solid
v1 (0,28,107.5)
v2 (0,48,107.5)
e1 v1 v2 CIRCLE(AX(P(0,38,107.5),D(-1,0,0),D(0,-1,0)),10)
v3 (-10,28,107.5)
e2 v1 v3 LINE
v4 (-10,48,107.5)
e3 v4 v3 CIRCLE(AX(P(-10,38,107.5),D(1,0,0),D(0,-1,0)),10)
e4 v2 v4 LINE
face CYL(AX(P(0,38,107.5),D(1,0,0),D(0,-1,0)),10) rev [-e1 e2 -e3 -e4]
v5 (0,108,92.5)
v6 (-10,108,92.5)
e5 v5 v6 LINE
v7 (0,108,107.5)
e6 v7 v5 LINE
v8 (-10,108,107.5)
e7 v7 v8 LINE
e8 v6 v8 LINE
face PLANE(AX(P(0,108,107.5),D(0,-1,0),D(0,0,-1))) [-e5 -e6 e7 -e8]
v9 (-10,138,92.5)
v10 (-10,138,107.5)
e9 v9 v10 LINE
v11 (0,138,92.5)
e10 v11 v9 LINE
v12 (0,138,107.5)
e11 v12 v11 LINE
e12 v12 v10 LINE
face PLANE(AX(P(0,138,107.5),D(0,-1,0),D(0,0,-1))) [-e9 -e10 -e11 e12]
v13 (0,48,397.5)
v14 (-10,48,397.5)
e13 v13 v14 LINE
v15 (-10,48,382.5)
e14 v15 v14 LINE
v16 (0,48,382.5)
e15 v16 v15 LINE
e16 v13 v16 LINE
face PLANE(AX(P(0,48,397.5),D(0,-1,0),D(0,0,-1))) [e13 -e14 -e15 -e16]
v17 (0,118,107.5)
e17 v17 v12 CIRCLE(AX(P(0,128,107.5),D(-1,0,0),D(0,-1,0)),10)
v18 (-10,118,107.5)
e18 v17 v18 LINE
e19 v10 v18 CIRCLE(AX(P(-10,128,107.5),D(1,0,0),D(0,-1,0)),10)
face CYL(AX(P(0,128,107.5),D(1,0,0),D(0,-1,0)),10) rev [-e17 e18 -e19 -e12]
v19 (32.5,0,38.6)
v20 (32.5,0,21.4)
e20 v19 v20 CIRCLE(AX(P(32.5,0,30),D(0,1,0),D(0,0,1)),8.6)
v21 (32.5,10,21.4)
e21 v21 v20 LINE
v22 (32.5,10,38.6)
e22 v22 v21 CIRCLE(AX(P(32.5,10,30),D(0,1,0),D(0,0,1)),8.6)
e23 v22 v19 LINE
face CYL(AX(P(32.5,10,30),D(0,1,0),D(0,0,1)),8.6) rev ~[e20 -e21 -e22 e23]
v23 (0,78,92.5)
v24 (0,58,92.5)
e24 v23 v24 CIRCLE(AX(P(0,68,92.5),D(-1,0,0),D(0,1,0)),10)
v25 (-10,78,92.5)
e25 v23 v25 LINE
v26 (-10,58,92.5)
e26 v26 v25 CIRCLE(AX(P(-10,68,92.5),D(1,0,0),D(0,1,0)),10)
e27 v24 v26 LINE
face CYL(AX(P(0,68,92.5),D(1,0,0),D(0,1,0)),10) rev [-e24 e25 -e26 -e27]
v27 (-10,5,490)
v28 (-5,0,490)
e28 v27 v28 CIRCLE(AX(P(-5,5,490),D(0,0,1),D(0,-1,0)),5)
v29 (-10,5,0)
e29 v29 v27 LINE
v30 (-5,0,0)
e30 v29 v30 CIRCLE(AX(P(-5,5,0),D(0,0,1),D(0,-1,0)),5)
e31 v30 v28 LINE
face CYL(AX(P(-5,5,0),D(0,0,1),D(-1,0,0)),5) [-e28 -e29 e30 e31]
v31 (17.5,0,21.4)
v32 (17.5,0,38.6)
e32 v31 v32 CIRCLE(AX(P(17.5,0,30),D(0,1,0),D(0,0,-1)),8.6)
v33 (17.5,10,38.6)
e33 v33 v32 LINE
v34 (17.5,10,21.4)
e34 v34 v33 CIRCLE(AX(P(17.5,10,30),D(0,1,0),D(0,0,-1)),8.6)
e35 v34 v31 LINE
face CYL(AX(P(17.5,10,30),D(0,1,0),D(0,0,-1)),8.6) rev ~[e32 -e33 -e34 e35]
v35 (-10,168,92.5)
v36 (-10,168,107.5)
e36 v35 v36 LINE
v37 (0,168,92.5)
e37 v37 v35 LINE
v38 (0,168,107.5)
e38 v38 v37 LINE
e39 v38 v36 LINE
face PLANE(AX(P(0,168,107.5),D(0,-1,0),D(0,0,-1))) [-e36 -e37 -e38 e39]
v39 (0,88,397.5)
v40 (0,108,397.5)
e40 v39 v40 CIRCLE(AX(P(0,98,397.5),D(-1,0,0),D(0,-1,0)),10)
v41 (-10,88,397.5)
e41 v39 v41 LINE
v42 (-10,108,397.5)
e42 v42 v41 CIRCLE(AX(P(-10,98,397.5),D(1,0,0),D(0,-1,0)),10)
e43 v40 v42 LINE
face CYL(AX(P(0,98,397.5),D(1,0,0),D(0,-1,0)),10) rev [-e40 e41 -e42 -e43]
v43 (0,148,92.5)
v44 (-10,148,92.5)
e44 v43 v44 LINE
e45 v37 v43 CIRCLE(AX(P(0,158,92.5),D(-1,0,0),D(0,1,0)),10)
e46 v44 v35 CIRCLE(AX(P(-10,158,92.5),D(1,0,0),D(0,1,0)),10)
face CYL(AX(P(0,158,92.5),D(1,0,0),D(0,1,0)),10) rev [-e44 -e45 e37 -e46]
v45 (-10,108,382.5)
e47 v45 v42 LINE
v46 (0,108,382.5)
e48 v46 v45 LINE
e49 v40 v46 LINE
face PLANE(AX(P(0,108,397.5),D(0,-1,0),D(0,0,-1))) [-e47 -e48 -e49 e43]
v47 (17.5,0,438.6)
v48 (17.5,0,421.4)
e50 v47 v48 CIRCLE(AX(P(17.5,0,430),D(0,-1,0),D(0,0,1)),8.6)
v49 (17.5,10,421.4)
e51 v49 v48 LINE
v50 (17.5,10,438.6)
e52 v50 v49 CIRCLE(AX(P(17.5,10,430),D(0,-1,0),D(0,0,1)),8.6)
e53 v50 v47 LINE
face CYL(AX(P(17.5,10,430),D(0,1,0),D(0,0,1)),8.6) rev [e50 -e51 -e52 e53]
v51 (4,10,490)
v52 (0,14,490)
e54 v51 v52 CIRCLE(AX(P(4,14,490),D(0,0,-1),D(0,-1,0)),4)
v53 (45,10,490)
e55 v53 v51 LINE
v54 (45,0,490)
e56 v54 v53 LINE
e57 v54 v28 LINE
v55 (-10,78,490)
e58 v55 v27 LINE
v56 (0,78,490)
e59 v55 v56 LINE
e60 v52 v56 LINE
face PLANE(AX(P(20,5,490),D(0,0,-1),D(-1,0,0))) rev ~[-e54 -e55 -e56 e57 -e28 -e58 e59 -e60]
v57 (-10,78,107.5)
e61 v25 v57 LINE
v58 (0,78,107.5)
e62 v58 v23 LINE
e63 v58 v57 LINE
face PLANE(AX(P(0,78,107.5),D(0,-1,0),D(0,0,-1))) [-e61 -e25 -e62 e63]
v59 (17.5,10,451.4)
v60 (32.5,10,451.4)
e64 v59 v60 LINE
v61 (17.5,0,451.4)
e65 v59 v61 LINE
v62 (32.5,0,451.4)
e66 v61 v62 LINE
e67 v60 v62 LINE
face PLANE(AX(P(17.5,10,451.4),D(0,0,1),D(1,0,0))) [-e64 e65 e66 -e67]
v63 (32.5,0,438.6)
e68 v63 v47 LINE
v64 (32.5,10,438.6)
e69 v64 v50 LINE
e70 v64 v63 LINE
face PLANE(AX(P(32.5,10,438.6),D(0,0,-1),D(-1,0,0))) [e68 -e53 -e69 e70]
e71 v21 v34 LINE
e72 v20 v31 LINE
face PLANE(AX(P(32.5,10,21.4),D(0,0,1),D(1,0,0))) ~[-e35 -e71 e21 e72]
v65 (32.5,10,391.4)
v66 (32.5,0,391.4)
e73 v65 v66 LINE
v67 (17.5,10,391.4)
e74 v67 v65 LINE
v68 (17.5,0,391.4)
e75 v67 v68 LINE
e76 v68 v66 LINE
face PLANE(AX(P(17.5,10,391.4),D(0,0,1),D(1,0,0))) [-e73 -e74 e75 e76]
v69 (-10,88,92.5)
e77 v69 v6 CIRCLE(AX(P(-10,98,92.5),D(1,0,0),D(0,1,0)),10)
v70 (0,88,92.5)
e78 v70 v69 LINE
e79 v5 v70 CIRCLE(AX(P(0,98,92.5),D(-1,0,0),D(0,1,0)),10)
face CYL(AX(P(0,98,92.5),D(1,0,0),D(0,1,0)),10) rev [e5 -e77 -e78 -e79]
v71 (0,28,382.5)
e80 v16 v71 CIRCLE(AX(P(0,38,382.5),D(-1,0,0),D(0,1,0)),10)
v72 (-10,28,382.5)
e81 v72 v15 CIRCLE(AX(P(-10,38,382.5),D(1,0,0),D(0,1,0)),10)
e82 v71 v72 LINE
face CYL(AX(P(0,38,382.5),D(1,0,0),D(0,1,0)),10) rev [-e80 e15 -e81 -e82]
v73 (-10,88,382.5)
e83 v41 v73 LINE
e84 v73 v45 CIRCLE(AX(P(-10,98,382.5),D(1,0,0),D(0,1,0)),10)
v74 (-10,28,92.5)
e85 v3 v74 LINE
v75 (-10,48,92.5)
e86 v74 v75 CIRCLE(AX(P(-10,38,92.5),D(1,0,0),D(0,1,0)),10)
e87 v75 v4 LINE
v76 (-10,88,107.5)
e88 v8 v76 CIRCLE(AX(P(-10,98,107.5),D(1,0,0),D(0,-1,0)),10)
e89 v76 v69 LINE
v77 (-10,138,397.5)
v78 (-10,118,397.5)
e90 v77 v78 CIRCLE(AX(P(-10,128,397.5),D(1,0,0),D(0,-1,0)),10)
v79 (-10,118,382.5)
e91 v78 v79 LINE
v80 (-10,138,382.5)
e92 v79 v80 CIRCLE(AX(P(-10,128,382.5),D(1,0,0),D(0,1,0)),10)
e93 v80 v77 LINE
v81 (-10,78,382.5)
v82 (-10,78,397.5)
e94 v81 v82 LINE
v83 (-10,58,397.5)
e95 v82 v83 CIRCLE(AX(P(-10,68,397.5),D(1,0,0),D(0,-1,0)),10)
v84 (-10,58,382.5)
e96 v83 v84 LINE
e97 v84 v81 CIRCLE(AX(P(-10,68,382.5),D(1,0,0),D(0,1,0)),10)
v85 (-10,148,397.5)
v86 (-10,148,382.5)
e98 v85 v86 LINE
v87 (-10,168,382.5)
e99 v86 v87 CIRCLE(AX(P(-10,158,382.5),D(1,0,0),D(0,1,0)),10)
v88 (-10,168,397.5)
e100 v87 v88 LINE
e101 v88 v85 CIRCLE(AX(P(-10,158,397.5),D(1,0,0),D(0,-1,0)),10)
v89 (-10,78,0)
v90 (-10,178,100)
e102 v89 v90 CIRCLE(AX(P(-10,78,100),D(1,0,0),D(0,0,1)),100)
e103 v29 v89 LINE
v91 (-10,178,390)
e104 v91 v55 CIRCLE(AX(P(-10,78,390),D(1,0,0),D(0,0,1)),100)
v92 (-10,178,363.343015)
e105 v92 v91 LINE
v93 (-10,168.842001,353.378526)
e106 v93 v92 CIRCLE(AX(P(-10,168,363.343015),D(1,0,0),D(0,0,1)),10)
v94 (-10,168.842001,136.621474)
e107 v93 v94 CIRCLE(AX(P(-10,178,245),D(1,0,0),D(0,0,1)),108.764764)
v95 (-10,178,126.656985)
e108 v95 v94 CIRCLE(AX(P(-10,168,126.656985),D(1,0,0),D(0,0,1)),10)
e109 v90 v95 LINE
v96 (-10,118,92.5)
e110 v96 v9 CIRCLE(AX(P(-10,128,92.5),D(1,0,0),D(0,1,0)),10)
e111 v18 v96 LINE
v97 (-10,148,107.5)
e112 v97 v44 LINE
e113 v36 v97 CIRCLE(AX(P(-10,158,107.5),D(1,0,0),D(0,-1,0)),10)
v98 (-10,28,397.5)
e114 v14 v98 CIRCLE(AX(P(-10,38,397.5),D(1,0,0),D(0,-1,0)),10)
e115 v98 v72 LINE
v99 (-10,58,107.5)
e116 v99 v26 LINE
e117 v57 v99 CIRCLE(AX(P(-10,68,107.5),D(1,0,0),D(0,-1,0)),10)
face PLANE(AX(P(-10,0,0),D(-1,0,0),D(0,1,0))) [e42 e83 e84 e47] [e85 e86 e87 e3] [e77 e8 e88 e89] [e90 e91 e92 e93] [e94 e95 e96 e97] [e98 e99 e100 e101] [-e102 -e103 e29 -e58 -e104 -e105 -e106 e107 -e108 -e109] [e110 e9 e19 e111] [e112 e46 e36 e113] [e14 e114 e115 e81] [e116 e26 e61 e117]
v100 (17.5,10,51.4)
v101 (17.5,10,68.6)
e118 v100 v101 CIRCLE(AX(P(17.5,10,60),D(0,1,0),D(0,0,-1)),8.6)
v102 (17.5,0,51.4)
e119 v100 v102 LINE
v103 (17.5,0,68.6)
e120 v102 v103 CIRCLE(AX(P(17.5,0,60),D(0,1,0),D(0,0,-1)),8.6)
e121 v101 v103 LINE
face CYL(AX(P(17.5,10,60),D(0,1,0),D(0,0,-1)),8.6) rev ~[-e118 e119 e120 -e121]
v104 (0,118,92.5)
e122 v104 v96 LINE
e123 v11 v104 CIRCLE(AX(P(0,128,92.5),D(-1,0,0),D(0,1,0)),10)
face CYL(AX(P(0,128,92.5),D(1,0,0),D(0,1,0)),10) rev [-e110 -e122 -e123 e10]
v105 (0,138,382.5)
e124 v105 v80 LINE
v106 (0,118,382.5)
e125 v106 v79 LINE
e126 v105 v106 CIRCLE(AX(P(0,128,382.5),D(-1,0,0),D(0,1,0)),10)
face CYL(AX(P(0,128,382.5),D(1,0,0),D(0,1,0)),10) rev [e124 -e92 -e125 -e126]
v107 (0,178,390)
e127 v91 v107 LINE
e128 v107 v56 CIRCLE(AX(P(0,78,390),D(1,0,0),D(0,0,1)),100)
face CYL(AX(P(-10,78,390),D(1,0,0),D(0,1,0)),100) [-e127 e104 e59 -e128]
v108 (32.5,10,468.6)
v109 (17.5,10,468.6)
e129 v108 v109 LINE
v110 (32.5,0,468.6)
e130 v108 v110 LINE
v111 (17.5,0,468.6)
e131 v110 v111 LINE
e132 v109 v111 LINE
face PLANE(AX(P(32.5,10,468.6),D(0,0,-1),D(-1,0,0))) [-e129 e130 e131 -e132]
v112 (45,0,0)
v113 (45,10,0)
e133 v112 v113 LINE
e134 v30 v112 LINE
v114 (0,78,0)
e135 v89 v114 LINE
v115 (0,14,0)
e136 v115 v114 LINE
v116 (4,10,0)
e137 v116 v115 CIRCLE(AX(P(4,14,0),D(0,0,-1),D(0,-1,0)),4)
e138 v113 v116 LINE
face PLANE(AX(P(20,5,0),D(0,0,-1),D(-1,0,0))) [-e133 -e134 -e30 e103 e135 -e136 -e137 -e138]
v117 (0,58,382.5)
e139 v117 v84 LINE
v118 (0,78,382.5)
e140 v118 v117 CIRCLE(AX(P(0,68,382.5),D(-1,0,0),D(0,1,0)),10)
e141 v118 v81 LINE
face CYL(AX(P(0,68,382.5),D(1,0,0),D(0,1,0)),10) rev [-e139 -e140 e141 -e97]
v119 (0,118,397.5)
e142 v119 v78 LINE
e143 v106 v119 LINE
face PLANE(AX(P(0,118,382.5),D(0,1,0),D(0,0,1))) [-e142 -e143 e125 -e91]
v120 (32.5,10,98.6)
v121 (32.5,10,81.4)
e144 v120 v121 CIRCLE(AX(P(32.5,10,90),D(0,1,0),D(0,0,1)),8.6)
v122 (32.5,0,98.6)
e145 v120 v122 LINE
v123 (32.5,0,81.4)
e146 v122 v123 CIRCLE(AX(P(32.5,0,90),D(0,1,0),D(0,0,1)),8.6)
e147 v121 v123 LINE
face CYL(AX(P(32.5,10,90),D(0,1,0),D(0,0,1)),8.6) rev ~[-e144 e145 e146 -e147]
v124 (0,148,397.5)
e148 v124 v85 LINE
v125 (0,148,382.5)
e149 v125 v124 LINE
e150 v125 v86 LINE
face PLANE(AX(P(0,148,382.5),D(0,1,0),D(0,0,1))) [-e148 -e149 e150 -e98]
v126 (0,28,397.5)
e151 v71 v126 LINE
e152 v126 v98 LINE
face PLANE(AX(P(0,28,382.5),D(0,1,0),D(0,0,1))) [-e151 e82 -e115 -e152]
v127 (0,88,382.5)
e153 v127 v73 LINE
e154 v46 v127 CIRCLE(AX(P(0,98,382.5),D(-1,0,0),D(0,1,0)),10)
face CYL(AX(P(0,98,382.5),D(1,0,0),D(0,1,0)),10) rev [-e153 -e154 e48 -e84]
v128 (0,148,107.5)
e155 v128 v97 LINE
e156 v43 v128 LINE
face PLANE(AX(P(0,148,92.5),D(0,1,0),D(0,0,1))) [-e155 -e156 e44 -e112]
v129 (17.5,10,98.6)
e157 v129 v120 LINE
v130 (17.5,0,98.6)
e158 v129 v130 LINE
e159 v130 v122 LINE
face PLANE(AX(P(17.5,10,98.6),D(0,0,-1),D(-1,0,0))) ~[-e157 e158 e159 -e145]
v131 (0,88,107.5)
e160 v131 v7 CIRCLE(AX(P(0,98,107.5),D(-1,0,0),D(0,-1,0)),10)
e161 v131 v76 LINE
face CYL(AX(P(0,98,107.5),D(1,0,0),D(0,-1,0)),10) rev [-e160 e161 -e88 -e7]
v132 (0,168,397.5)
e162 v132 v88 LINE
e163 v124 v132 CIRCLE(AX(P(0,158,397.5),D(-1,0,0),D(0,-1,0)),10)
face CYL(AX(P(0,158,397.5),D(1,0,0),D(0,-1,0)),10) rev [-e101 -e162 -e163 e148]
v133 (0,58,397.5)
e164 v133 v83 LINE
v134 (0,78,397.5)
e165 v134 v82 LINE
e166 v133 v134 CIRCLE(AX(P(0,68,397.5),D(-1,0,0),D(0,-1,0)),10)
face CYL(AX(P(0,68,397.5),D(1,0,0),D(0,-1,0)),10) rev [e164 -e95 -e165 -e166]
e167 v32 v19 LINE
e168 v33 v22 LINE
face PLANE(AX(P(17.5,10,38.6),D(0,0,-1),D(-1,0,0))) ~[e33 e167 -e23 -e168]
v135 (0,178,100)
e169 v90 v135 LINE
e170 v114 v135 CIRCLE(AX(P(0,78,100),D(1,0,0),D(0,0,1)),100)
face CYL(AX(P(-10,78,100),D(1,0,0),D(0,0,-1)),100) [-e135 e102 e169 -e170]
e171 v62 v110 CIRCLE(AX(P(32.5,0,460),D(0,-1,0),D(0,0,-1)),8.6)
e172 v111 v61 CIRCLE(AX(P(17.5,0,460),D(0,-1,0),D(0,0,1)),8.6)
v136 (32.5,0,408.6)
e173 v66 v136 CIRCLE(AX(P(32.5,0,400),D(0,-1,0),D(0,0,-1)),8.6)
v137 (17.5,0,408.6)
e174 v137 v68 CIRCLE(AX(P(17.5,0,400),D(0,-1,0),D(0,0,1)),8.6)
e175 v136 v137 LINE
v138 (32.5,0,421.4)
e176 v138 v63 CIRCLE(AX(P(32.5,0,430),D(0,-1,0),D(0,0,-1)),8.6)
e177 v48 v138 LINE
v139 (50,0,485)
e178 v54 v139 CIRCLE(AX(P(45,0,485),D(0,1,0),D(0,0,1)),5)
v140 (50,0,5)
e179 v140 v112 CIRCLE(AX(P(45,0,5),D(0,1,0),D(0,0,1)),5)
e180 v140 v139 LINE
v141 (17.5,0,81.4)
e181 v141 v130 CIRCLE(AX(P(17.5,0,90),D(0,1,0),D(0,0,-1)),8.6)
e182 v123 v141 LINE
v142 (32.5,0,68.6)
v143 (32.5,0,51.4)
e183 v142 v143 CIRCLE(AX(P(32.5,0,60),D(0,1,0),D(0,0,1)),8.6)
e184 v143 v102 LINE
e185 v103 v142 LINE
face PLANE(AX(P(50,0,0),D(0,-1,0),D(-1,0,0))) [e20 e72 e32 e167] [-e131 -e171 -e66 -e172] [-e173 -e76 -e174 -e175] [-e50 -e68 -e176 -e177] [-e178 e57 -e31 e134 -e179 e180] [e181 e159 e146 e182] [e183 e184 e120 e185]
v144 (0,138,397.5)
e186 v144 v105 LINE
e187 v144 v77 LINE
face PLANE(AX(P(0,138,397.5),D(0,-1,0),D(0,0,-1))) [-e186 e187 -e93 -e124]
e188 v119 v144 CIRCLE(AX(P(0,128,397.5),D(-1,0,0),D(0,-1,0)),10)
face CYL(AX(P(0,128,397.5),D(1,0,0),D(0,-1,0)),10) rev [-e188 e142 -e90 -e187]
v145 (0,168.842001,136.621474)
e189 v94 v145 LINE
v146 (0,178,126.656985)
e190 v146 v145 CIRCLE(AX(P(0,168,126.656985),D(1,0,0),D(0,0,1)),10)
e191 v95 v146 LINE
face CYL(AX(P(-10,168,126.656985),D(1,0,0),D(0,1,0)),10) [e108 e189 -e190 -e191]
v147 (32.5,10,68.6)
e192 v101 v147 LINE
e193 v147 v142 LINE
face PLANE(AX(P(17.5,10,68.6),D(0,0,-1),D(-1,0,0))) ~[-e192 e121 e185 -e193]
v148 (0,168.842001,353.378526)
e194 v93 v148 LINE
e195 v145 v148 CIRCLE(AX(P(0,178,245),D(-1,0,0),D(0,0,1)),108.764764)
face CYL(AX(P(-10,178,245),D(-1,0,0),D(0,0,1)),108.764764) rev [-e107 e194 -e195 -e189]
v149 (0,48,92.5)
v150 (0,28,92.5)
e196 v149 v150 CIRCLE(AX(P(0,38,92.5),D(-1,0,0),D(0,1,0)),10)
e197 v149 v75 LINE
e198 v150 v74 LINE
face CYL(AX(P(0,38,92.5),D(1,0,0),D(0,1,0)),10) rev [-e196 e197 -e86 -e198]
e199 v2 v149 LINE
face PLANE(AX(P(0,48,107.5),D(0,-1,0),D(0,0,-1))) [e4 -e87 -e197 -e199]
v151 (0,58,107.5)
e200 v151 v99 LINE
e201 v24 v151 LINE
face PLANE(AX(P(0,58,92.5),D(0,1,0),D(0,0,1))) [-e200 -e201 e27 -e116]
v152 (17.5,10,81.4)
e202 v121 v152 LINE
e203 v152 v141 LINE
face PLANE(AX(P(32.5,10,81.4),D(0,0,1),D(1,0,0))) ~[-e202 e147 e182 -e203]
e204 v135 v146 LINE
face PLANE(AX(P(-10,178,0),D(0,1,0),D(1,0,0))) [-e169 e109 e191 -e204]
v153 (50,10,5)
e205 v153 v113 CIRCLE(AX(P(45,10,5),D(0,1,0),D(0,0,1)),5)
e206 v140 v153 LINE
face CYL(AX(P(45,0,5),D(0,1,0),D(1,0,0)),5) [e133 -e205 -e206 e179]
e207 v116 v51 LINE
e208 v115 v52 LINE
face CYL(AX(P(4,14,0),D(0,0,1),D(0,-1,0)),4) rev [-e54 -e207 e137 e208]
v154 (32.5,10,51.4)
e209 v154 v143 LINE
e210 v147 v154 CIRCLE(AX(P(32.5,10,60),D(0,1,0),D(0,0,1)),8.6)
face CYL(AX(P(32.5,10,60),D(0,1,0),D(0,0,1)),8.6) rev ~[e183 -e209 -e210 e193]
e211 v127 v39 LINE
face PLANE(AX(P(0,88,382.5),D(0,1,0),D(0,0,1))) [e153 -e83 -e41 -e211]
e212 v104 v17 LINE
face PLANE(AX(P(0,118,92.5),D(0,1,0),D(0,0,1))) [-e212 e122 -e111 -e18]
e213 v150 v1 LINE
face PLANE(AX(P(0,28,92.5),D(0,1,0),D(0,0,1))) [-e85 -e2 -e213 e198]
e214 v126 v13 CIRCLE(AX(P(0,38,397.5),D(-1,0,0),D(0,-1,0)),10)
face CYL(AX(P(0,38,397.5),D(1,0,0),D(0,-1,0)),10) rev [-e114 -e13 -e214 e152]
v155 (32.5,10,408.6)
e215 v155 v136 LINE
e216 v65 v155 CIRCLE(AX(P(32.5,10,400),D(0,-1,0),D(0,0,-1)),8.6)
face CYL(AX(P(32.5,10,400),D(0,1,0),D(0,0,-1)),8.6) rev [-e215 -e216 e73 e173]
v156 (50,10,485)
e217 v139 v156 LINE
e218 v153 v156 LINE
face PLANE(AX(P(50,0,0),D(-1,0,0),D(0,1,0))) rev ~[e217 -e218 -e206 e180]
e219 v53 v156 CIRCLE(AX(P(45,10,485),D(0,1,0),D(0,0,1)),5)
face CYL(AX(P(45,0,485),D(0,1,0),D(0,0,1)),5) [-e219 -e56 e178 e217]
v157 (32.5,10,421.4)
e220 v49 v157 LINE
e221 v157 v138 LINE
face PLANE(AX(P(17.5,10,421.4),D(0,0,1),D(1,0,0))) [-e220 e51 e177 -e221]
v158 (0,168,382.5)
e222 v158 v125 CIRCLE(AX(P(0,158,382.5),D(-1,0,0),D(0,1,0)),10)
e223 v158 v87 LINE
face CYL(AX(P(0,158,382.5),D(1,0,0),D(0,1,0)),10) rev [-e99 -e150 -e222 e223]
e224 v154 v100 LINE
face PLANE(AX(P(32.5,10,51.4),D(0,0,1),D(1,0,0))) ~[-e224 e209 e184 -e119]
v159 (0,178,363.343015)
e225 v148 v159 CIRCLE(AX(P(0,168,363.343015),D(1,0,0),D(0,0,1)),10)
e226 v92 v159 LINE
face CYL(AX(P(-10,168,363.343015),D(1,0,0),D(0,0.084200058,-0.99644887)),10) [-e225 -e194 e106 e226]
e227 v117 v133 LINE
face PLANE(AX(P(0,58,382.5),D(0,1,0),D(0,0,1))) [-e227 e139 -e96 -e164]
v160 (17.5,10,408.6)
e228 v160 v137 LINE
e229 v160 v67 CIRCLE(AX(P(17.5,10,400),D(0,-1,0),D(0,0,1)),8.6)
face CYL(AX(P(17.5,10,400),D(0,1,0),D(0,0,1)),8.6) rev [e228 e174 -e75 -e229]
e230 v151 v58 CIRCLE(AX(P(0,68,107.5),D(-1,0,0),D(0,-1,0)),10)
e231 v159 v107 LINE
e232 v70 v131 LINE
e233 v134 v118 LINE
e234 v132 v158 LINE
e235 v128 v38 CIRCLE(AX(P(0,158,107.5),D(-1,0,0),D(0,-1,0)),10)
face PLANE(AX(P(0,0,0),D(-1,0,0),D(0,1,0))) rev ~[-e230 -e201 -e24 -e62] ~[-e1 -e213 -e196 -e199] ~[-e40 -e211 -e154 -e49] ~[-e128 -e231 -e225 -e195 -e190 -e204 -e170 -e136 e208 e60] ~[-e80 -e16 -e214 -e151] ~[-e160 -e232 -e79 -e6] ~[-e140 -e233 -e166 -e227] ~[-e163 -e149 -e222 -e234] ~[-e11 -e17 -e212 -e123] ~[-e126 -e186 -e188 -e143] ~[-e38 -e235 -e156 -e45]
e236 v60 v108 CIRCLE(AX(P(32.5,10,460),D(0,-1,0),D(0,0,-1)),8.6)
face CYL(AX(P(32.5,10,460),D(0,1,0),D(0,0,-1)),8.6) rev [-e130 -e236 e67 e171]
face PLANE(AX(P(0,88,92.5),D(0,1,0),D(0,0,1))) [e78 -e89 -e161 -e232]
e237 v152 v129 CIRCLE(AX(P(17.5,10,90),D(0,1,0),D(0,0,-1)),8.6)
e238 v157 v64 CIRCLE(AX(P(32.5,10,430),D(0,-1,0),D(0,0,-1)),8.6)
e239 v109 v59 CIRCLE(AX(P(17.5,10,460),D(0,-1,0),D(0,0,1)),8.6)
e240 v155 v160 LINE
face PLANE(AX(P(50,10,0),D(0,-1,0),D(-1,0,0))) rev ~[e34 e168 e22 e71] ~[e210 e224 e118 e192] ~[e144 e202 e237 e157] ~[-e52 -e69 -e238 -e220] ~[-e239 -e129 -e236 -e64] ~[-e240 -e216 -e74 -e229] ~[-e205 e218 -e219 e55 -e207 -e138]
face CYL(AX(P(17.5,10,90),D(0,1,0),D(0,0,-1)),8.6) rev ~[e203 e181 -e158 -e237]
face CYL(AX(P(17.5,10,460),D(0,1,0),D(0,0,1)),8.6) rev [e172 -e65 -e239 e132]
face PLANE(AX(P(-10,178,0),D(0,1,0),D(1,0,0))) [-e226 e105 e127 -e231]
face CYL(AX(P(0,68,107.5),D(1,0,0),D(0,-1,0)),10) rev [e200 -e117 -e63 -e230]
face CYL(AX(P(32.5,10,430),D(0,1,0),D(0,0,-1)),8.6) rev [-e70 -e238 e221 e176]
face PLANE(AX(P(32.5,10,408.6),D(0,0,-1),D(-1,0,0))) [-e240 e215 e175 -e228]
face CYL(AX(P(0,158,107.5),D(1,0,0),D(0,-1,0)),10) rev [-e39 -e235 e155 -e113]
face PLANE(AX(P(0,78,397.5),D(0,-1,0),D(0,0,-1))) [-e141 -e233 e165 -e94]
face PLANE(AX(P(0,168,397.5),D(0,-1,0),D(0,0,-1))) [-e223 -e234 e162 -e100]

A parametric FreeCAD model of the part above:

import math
import FreeCAD as App
import Part
import Sketcher


def edges_at(feature, points):
    """Names of the edges that pass closest to the given points."""
    edges = feature.Shape.Edges
    near = lambda p: min(range(len(edges)), key=lambda i: edges[i].distToShape(Part.Vertex(*p))[0])
    return sorted({f"Edge{near(p) + 1}" for p in points})

doc = App.newDocument("Part")
body = doc.addObject("PartDesign::Body", "Body")

sketch1 = body.newObject("Sketcher::SketchObject", "Sketch")
sketch1.AttachmentSupport = (doc.getObject("XY_Plane"), [""])
sketch1.MapMode = "FlatFace"
sketch1.addGeometry(Part.LineSegment(App.Vector(-10, 178, 0), App.Vector(-10, 0, 0)), False)
sketch1.addGeometry(Part.LineSegment(App.Vector(-10, 0, 0), App.Vector(0, 0, 0)), False)
sketch1.addGeometry(Part.LineSegment(App.Vector(0, 0, 0), App.Vector(0, 178, 0)), False)
sketch1.addGeometry(Part.LineSegment(App.Vector(0, 178, 0), App.Vector(-10, 178, 0)), False)
sketch1.addConstraint(Sketcher.Constraint("Coincident", 0, 2, 1, 1))
sketch1.addConstraint(Sketcher.Constraint("Coincident", 1, 2, 2, 1))
sketch1.addConstraint(Sketcher.Constraint("Coincident", 2, 2, 3, 1))
sketch1.addConstraint(Sketcher.Constraint("Coincident", 3, 2, 0, 1))
sketch1.addConstraint(Sketcher.Constraint("Vertical", 0))
sketch1.addConstraint(Sketcher.Constraint("Horizontal", 1))
sketch1.addConstraint(Sketcher.Constraint("Vertical", 2))
sketch1.addConstraint(Sketcher.Constraint("Horizontal", 3))
sketch1.addConstraint(Sketcher.Constraint("Coincident", 1, 2, -1, 1))
sketch1.addConstraint(Sketcher.Constraint("DistanceX", 1, 1, 1, 2, 10.0))
sketch1.addConstraint(Sketcher.Constraint("DistanceY", 0, 2, 0, 1, 178.0))
pad1 = body.newObject("PartDesign::Pad", "Pad")
pad1.Profile = sketch1
pad1.Length = 490

sketch2 = body.newObject("Sketcher::SketchObject", "Sketch001")
sketch2.AttachmentSupport = (doc.getObject("YZ_Plane"), [""])
sketch2.MapMode = "FlatFace"
sketch2.addGeometry(Part.LineSegment(App.Vector(168, 92.5, 0), App.Vector(168, 107.5, 0)), False)
sketch2.addGeometry(Part.ArcOfCircle(Part.Circle(App.Vector(158, 107.5, 0), App.Vector(0, 0, 1), 10), math.radians(0), math.radians(180)), False)
sketch2.addGeometry(Part.LineSegment(App.Vector(148, 107.5, 0), App.Vector(148, 92.5, 0)), False)
sketch2.addGeometry(Part.ArcOfCircle(Part.Circle(App.Vector(158, 92.5, 0), App.Vector(0, 0, 1), 10), math.radians(180), math.radians(360)), False)
sketch2.addGeometry(Part.LineSegment(App.Vector(138, 92.5, 0), App.Vector(138, 107.5, 0)), False)
sketch2.addGeometry(Part.ArcOfCircle(Part.Circle(App.Vector(128, 107.5, 0), App.Vector(0, 0, 1), 10), math.radians(0), math.radians(180)), False)
sketch2.addGeometry(Part.LineSegment(App.Vector(118, 107.5, 0), App.Vector(118, 92.5, 0)), False)
sketch2.addGeometry(Part.ArcOfCircle(Part.Circle(App.Vector(128, 92.5, 0), App.Vector(0, 0, 1), 10), math.radians(180), math.radians(360)), False)
sketch2.addGeometry(Part.LineSegment(App.Vector(108, 92.5, 0), App.Vector(108, 107.5, 0)), False)
sketch2.addGeometry(Part.ArcOfCircle(Part.Circle(App.Vector(98, 107.5, 0), App.Vector(0, 0, 1), 10), math.radians(0), math.radians(180)), False)
sketch2.addGeometry(Part.LineSegment(App.Vector(88, 107.5, 0), App.Vector(88, 92.5, 0)), False)
sketch2.addGeometry(Part.ArcOfCircle(Part.Circle(App.Vector(98, 92.5, 0), App.Vector(0, 0, 1), 10), math.radians(180), math.radians(360)), False)
sketch2.addGeometry(Part.LineSegment(App.Vector(78, 92.5, 0), App.Vector(78, 107.5, 0)), False)
sketch2.addGeometry(Part.ArcOfCircle(Part.Circle(App.Vector(68, 107.5, 0), App.Vector(0, 0, 1), 10), math.radians(0), math.radians(180)), False)
sketch2.addGeometry(Part.LineSegment(App.Vector(58, 107.5, 0), App.Vector(58, 92.5, 0)), False)
sketch2.addGeometry(Part.ArcOfCircle(Part.Circle(App.Vector(68, 92.5, 0), App.Vector(0, 0, 1), 10), math.radians(180), math.radians(360)), False)
sketch2.addGeometry(Part.LineSegment(App.Vector(48, 92.5, 0), App.Vector(48, 107.5, 0)), False)
sketch2.addGeometry(Part.ArcOfCircle(Part.Circle(App.Vector(38, 107.5, 0), App.Vector(0, 0, 1), 10), math.radians(0), math.radians(180)), False)
sketch2.addGeometry(Part.LineSegment(App.Vector(28, 107.5, 0), App.Vector(28, 92.5, 0)), False)
sketch2.addGeometry(Part.ArcOfCircle(Part.Circle(App.Vector(38, 92.5, 0), App.Vector(0, 0, 1), 10), math.radians(180), math.radians(360)), False)
sketch2.addConstraint(Sketcher.Constraint("Tangent", 0, 2, 1, 1))
sketch2.addConstraint(Sketcher.Constraint("Tangent", 1, 2, 2, 1))
sketch2.addConstraint(Sketcher.Constraint("Tangent", 2, 2, 3, 1))
sketch2.addConstraint(Sketcher.Constraint("Tangent", 3, 2, 0, 1))
sketch2.addConstraint(Sketcher.Constraint("Tangent", 4, 2, 5, 1))
sketch2.addConstraint(Sketcher.Constraint("Tangent", 5, 2, 6, 1))
sketch2.addConstraint(Sketcher.Constraint("Tangent", 6, 2, 7, 1))
sketch2.addConstraint(Sketcher.Constraint("Tangent", 7, 2, 4, 1))
sketch2.addConstraint(Sketcher.Constraint("Tangent", 8, 2, 9, 1))
sketch2.addConstraint(Sketcher.Constraint("Tangent", 9, 2, 10, 1))
sketch2.addConstraint(Sketcher.Constraint("Tangent", 10, 2, 11, 1))
sketch2.addConstraint(Sketcher.Constraint("Tangent", 11, 2, 8, 1))
sketch2.addConstraint(Sketcher.Constraint("Tangent", 12, 2, 13, 1))
sketch2.addConstraint(Sketcher.Constraint("Tangent", 13, 2, 14, 1))
sketch2.addConstraint(Sketcher.Constraint("Tangent", 14, 2, 15, 1))
sketch2.addConstraint(Sketcher.Constraint("Tangent", 15, 2, 12, 1))
sketch2.addConstraint(Sketcher.Constraint("Tangent", 16, 2, 17, 1))
sketch2.addConstraint(Sketcher.Constraint("Tangent", 17, 2, 18, 1))
sketch2.addConstraint(Sketcher.Constraint("Tangent", 18, 2, 19, 1))
sketch2.addConstraint(Sketcher.Constraint("Tangent", 19, 2, 16, 1))
sketch2.addConstraint(Sketcher.Constraint("Vertical", 0))
sketch2.addConstraint(Sketcher.Constraint("Vertical", 2))
sketch2.addConstraint(Sketcher.Constraint("Vertical", 4))
sketch2.addConstraint(Sketcher.Constraint("Vertical", 6))
sketch2.addConstraint(Sketcher.Constraint("Vertical", 8))
sketch2.addConstraint(Sketcher.Constraint("Vertical", 10))
sketch2.addConstraint(Sketcher.Constraint("Vertical", 12))
sketch2.addConstraint(Sketcher.Constraint("Vertical", 14))
sketch2.addConstraint(Sketcher.Constraint("Vertical", 16))
sketch2.addConstraint(Sketcher.Constraint("Vertical", 18))
sketch2.addConstraint(Sketcher.Constraint("Equal", 3, 5))
sketch2.addConstraint(Sketcher.Constraint("Equal", 7, 9))
sketch2.addConstraint(Sketcher.Constraint("Equal", 11, 13))
sketch2.addConstraint(Sketcher.Constraint("Equal", 15, 17))
sketch2.addConstraint(Sketcher.Constraint("Horizontal", 1, 3, 5, 3))
sketch2.addConstraint(Sketcher.Constraint("Horizontal", 3, 3, 7, 3))
sketch2.addConstraint(Sketcher.Constraint("Horizontal", 5, 3, 9, 3))
sketch2.addConstraint(Sketcher.Constraint("Horizontal", 7, 3, 11, 3))
sketch2.addConstraint(Sketcher.Constraint("Horizontal", 9, 3, 13, 3))
sketch2.addConstraint(Sketcher.Constraint("Horizontal", 11, 3, 15, 3))
sketch2.addConstraint(Sketcher.Constraint("Horizontal", 13, 3, 17, 3))
sketch2.addConstraint(Sketcher.Constraint("Horizontal", 15, 3, 19, 3))
sketch2.addConstraint(Sketcher.Constraint("Radius", 1, 10.0))
sketch2.addConstraint(Sketcher.Constraint("DistanceY", 0, 1, 0, 2, 15.0))
sketch2.addConstraint(Sketcher.Constraint("DistanceX", -1, 1, 1, 3, 158.0))
sketch2.addConstraint(Sketcher.Constraint("DistanceX", -1, 1, 5, 3, 128.0))
sketch2.addConstraint(Sketcher.Constraint("DistanceX", -1, 1, 9, 3, 98.0))
sketch2.addConstraint(Sketcher.Constraint("DistanceX", -1, 1, 13, 3, 68.0))
sketch2.addConstraint(Sketcher.Constraint("DistanceX", -1, 1, 17, 3, 38.0))
sketch2.addConstraint(Sketcher.Constraint("DistanceY", -1, 1, 1, 3, 107.5))
pocket1 = body.newObject("PartDesign::Pocket", "Pocket")
pocket1.Profile = sketch2
pocket1.Type = "ThroughAll"

sketch3 = body.newObject("Sketcher::SketchObject", "Sketch002")
sketch3.AttachmentSupport = (doc.getObject("YZ_Plane"), [""])
sketch3.MapMode = "FlatFace"
sketch3.addGeometry(Part.LineSegment(App.Vector(168, 382.5, 0), App.Vector(168, 397.5, 0)), False)
sketch3.addGeometry(Part.ArcOfCircle(Part.Circle(App.Vector(158, 397.5, 0), App.Vector(0, 0, 1), 10), math.radians(0), math.radians(180)), False)
sketch3.addGeometry(Part.LineSegment(App.Vector(148, 397.5, 0), App.Vector(148, 382.5, 0)), False)
sketch3.addGeometry(Part.ArcOfCircle(Part.Circle(App.Vector(158, 382.5, 0), App.Vector(0, 0, 1), 10), math.radians(180), math.radians(360)), False)
sketch3.addGeometry(Part.LineSegment(App.Vector(138, 382.5, 0), App.Vector(138, 397.5, 0)), False)
sketch3.addGeometry(Part.ArcOfCircle(Part.Circle(App.Vector(128, 397.5, 0), App.Vector(0, 0, 1), 10), math.radians(0), math.radians(180)), False)
sketch3.addGeometry(Part.LineSegment(App.Vector(118, 397.5, 0), App.Vector(118, 382.5, 0)), False)
sketch3.addGeometry(Part.ArcOfCircle(Part.Circle(App.Vector(128, 382.5, 0), App.Vector(0, 0, 1), 10), math.radians(180), math.radians(360)), False)
sketch3.addGeometry(Part.LineSegment(App.Vector(108, 382.5, 0), App.Vector(108, 397.5, 0)), False)
sketch3.addGeometry(Part.ArcOfCircle(Part.Circle(App.Vector(98, 397.5, 0), App.Vector(0, 0, 1), 10), math.radians(0), math.radians(180)), False)
sketch3.addGeometry(Part.LineSegment(App.Vector(88, 397.5, 0), App.Vector(88, 382.5, 0)), False)
sketch3.addGeometry(Part.ArcOfCircle(Part.Circle(App.Vector(98, 382.5, 0), App.Vector(0, 0, 1), 10), math.radians(180), math.radians(360)), False)
sketch3.addGeometry(Part.LineSegment(App.Vector(78, 382.5, 0), App.Vector(78, 397.5, 0)), False)
sketch3.addGeometry(Part.ArcOfCircle(Part.Circle(App.Vector(68, 397.5, 0), App.Vector(0, 0, 1), 10), math.radians(0), math.radians(180)), False)
sketch3.addGeometry(Part.LineSegment(App.Vector(58, 397.5, 0), App.Vector(58, 382.5, 0)), False)
sketch3.addGeometry(Part.ArcOfCircle(Part.Circle(App.Vector(68, 382.5, 0), App.Vector(0, 0, 1), 10), math.radians(180), math.radians(360)), False)
sketch3.addGeometry(Part.LineSegment(App.Vector(48, 382.5, 0), App.Vector(48, 397.5, 0)), False)
sketch3.addGeometry(Part.ArcOfCircle(Part.Circle(App.Vector(38, 397.5, 0), App.Vector(0, 0, 1), 10), math.radians(0), math.radians(180)), False)
sketch3.addGeometry(Part.LineSegment(App.Vector(28, 397.5, 0), App.Vector(28, 382.5, 0)), False)
sketch3.addGeometry(Part.ArcOfCircle(Part.Circle(App.Vector(38, 382.5, 0), App.Vector(0, 0, 1), 10), math.radians(180), math.radians(360)), False)
sketch3.addConstraint(Sketcher.Constraint("Tangent", 0, 2, 1, 1))
sketch3.addConstraint(Sketcher.Constraint("Tangent", 1, 2, 2, 1))
sketch3.addConstraint(Sketcher.Constraint("Tangent", 2, 2, 3, 1))
sketch3.addConstraint(Sketcher.Constraint("Tangent", 3, 2, 0, 1))
sketch3.addConstraint(Sketcher.Constraint("Tangent", 4, 2, 5, 1))
sketch3.addConstraint(Sketcher.Constraint("Tangent", 5, 2, 6, 1))
sketch3.addConstraint(Sketcher.Constraint("Tangent", 6, 2, 7, 1))
sketch3.addConstraint(Sketcher.Constraint("Tangent", 7, 2, 4, 1))
sketch3.addConstraint(Sketcher.Constraint("Tangent", 8, 2, 9, 1))
sketch3.addConstraint(Sketcher.Constraint("Tangent", 9, 2, 10, 1))
sketch3.addConstraint(Sketcher.Constraint("Tangent", 10, 2, 11, 1))
sketch3.addConstraint(Sketcher.Constraint("Tangent", 11, 2, 8, 1))
sketch3.addConstraint(Sketcher.Constraint("Tangent", 12, 2, 13, 1))
sketch3.addConstraint(Sketcher.Constraint("Tangent", 13, 2, 14, 1))
sketch3.addConstraint(Sketcher.Constraint("Tangent", 14, 2, 15, 1))
sketch3.addConstraint(Sketcher.Constraint("Tangent", 15, 2, 12, 1))
sketch3.addConstraint(Sketcher.Constraint("Tangent", 16, 2, 17, 1))
sketch3.addConstraint(Sketcher.Constraint("Tangent", 17, 2, 18, 1))
sketch3.addConstraint(Sketcher.Constraint("Tangent", 18, 2, 19, 1))
sketch3.addConstraint(Sketcher.Constraint("Tangent", 19, 2, 16, 1))
sketch3.addConstraint(Sketcher.Constraint("Vertical", 0))
sketch3.addConstraint(Sketcher.Constraint("Vertical", 2))
sketch3.addConstraint(Sketcher.Constraint("Vertical", 4))
sketch3.addConstraint(Sketcher.Constraint("Vertical", 6))
sketch3.addConstraint(Sketcher.Constraint("Vertical", 8))
sketch3.addConstraint(Sketcher.Constraint("Vertical", 10))
sketch3.addConstraint(Sketcher.Constraint("Vertical", 12))
sketch3.addConstraint(Sketcher.Constraint("Vertical", 14))
sketch3.addConstraint(Sketcher.Constraint("Vertical", 16))
sketch3.addConstraint(Sketcher.Constraint("Vertical", 18))
sketch3.addConstraint(Sketcher.Constraint("Equal", 3, 5))
sketch3.addConstraint(Sketcher.Constraint("Equal", 7, 9))
sketch3.addConstraint(Sketcher.Constraint("Equal", 11, 13))
sketch3.addConstraint(Sketcher.Constraint("Equal", 15, 17))
sketch3.addConstraint(Sketcher.Constraint("Horizontal", 1, 3, 5, 3))
sketch3.addConstraint(Sketcher.Constraint("Horizontal", 3, 3, 7, 3))
sketch3.addConstraint(Sketcher.Constraint("Horizontal", 5, 3, 9, 3))
sketch3.addConstraint(Sketcher.Constraint("Horizontal", 7, 3, 11, 3))
sketch3.addConstraint(Sketcher.Constraint("Horizontal", 9, 3, 13, 3))
sketch3.addConstraint(Sketcher.Constraint("Horizontal", 11, 3, 15, 3))
sketch3.addConstraint(Sketcher.Constraint("Horizontal", 13, 3, 17, 3))
sketch3.addConstraint(Sketcher.Constraint("Horizontal", 15, 3, 19, 3))
sketch3.addConstraint(Sketcher.Constraint("Radius", 1, 10.0))
sketch3.addConstraint(Sketcher.Constraint("DistanceY", 0, 1, 0, 2, 15.0))
sketch3.addConstraint(Sketcher.Constraint("DistanceX", -1, 1, 1, 3, 158.0))
sketch3.addConstraint(Sketcher.Constraint("DistanceX", -1, 1, 5, 3, 128.0))
sketch3.addConstraint(Sketcher.Constraint("DistanceX", -1, 1, 9, 3, 98.0))
sketch3.addConstraint(Sketcher.Constraint("DistanceX", -1, 1, 13, 3, 68.0))
sketch3.addConstraint(Sketcher.Constraint("DistanceX", -1, 1, 17, 3, 38.0))
sketch3.addConstraint(Sketcher.Constraint("DistanceY", -1, 1, 1, 3, 397.5))
pocket2 = body.newObject("PartDesign::Pocket", "Pocket001")
pocket2.Profile = sketch3
pocket2.Type = "ThroughAll"
doc.recompute()

fillet = body.newObject("PartDesign::Fillet", "Fillet")
fillet.Base = (pocket2, edges_at(pocket2, [(-5, 178, 0)]))
fillet.Radius = 100
doc.recompute()

fillet2 = body.newObject("PartDesign::Fillet", "Fillet001")
fillet2.Base = (fillet, edges_at(fillet, [(-5, 178, 490)]))
fillet2.Radius = 100

sketch4 = body.newObject("Sketcher::SketchObject", "Sketch003")
sketch4.AttachmentSupport = (doc.getObject("YZ_Plane"), [""])
sketch4.MapMode = "FlatFace"
sketch4.AttachmentOffset = App.Placement(App.Vector(0, 0, -10), App.Rotation())
sketch4.addGeometry(Part.LineSegment(App.Vector(178, 353.764764, 0), App.Vector(178, 136.235236, 0)), False)
sketch4.addGeometry(Part.ArcOfCircle(Part.Circle(App.Vector(178, 245, 0), App.Vector(0, 0, 1), 108.764764), math.radians(90), math.radians(270)), False)
sketch4.addConstraint(Sketcher.Constraint("Coincident", 0, 1, 1, 1))
sketch4.addConstraint(Sketcher.Constraint("Coincident", 1, 2, 0, 2))
sketch4.addConstraint(Sketcher.Constraint("Vertical", 0))
sketch4.addConstraint(Sketcher.Constraint("Vertical", 1, 3, 0, 1))
sketch4.addConstraint(Sketcher.Constraint("DistanceX", -1, 1, 1, 3, 178.0))
sketch4.addConstraint(Sketcher.Constraint("DistanceY", -1, 1, 1, 3, 245.0))
sketch4.addConstraint(Sketcher.Constraint("Radius", 1, 108.764764))
pocket3 = body.newObject("PartDesign::Pocket", "Pocket002")
pocket3.Profile = sketch4
pocket3.Type = "ThroughAll"
pocket3.Reversed = True
doc.recompute()

fillet3 = body.newObject("PartDesign::Fillet", "Fillet002")
fillet3.Base = (pocket3, edges_at(pocket3, [(-5, 178, 353.765), (-5, 178, 136.235)]))
fillet3.Radius = 10

sketch5 = body.newObject("Sketcher::SketchObject", "Sketch004")
sketch5.AttachmentSupport = (doc.getObject("XY_Plane"), [""])
sketch5.MapMode = "FlatFace"
sketch5.addGeometry(Part.LineSegment(App.Vector(50, 10, 0), App.Vector(50, 0, 0)), False)
sketch5.addGeometry(Part.LineSegment(App.Vector(50, 0, 0), App.Vector(-10, 0, 0)), False)
sketch5.addGeometry(Part.LineSegment(App.Vector(-10, 0, 0), App.Vector(-10, 10, 0)), False)
sketch5.addGeometry(Part.LineSegment(App.Vector(-10, 10, 0), App.Vector(50, 10, 0)), False)
sketch5.addConstraint(Sketcher.Constraint("Coincident", 0, 2, 1, 1))
sketch5.addConstraint(Sketcher.Constraint("Coincident", 1, 2, 2, 1))
sketch5.addConstraint(Sketcher.Constraint("Coincident", 2, 2, 3, 1))
sketch5.addConstraint(Sketcher.Constraint("Coincident", 3, 2, 0, 1))
sketch5.addConstraint(Sketcher.Constraint("Vertical", 0))
sketch5.addConstraint(Sketcher.Constraint("Horizontal", 1))
sketch5.addConstraint(Sketcher.Constraint("Vertical", 2))
sketch5.addConstraint(Sketcher.Constraint("Horizontal", 3))
sketch5.addConstraint(Sketcher.Constraint("PointOnObject", 0, 2, -1))
sketch5.addConstraint(Sketcher.Constraint("DistanceX", 1, 2, 1, 1, 60.0))
sketch5.addConstraint(Sketcher.Constraint("DistanceY", 0, 2, 0, 1, 10.0))
sketch5.addConstraint(Sketcher.Constraint("DistanceX", -1, 1, 0, 2, 50.0))
pad2 = body.newObject("PartDesign::Pad", "Pad001")
pad2.Profile = sketch5
pad2.Length = 490
doc.recompute()

fillet4 = body.newObject("PartDesign::Fillet", "Fillet003")
fillet4.Base = (pad2, edges_at(pad2, [(-10, 0, 245)]))
fillet4.Radius = 5
doc.recompute()

fillet5 = body.newObject("PartDesign::Fillet", "Fillet004")
fillet5.Base = (fillet4, edges_at(fillet4, [(0, 10, 245)]))
fillet5.Radius = 4
doc.recompute()

fillet6 = body.newObject("PartDesign::Fillet", "Fillet005")
fillet6.Base = (fillet5, edges_at(fillet5, [(50, 5, 0), (50, 5, 490)]))
fillet6.Radius = 5

sketch6 = body.newObject("Sketcher::SketchObject", "Sketch005")
sketch6.AttachmentSupport = (doc.getObject("XZ_Plane"), [""])
sketch6.MapMode = "FlatFace"
sketch6.AttachmentOffset = App.Placement(App.Vector(0, 0, -10), App.Rotation())
sketch6.addGeometry(Part.LineSegment(App.Vector(17.5, 468.6, 0), App.Vector(32.5, 468.6, 0)), False)
sketch6.addGeometry(Part.ArcOfCircle(Part.Circle(App.Vector(32.5, 460, 0), App.Vector(0, 0, 1), 8.6), math.radians(-90), math.radians(90)), False)
sketch6.addGeometry(Part.LineSegment(App.Vector(32.5, 451.4, 0), App.Vector(17.5, 451.4, 0)), False)
sketch6.addGeometry(Part.ArcOfCircle(Part.Circle(App.Vector(17.5, 460, 0), App.Vector(0, 0, 1), 8.6), math.radians(90), math.radians(270)), False)
sketch6.addConstraint(Sketcher.Constraint("Tangent", 0, 2, 1, 2))
sketch6.addConstraint(Sketcher.Constraint("Tangent", 1, 1, 2, 1))
sketch6.addConstraint(Sketcher.Constraint("Tangent", 2, 2, 3, 2))
sketch6.addConstraint(Sketcher.Constraint("Tangent", 3, 1, 0, 1))
sketch6.addConstraint(Sketcher.Constraint("Horizontal", 0))
sketch6.addConstraint(Sketcher.Constraint("Horizontal", 2))
sketch6.addConstraint(Sketcher.Constraint("Radius", 1, 8.6))
sketch6.addConstraint(Sketcher.Constraint("DistanceX", 0, 1, 0, 2, 15.0))
sketch6.addConstraint(Sketcher.Constraint("DistanceY", -1, 1, 1, 3, 460.0))
sketch6.addConstraint(Sketcher.Constraint("DistanceX", -1, 1, 1, 3, 32.5))
pocket4 = body.newObject("PartDesign::Pocket", "Pocket003")
pocket4.Profile = sketch6
pocket4.Length = 10
pocket4.Reversed = True
doc.recompute()

datumplane = body.newObject("PartDesign::Plane", "DatumPlane")
datumplane.AttachmentSupport = (doc.getObject("XY_Plane"), [""])
datumplane.MapMode = "FlatFace"
datumplane.AttachmentOffset = App.Placement(App.Vector(0, 0, 245), App.Rotation())
mirrored = body.newObject("PartDesign::Mirrored", "Mirrored")
mirrored.Originals = [pocket4]
mirrored.MirrorPlane = (datumplane, [""])
body.Tip = mirrored

sketch7 = body.newObject("Sketcher::SketchObject", "Sketch006")
sketch7.AttachmentSupport = (doc.getObject("XZ_Plane"), [""])
sketch7.MapMode = "FlatFace"
sketch7.AttachmentOffset = App.Placement(App.Vector(0, 0, -10), App.Rotation())
sketch7.addGeometry(Part.LineSegment(App.Vector(32.5, 421.4, 0), App.Vector(17.5, 421.4, 0)), False)
sketch7.addGeometry(Part.ArcOfCircle(Part.Circle(App.Vector(17.5, 430, 0), App.Vector(0, 0, 1), 8.6), math.radians(90), math.radians(270)), False)
sketch7.addGeometry(Part.LineSegment(App.Vector(17.5, 438.6, 0), App.Vector(32.5, 438.6, 0)), False)
sketch7.addGeometry(Part.ArcOfCircle(Part.Circle(App.Vector(32.5, 430, 0), App.Vector(0, 0, 1), 8.6), math.radians(-90), math.radians(90)), False)
sketch7.addConstraint(Sketcher.Constraint("Tangent", 0, 2, 1, 2))
sketch7.addConstraint(Sketcher.Constraint("Tangent", 1, 1, 2, 1))
sketch7.addConstraint(Sketcher.Constraint("Tangent", 2, 2, 3, 2))
sketch7.addConstraint(Sketcher.Constraint("Tangent", 3, 1, 0, 1))
sketch7.addConstraint(Sketcher.Constraint("Horizontal", 0))
sketch7.addConstraint(Sketcher.Constraint("Horizontal", 2))
sketch7.addConstraint(Sketcher.Constraint("Radius", 1, 8.6))
sketch7.addConstraint(Sketcher.Constraint("DistanceX", 0, 2, 0, 1, 15.0))
sketch7.addConstraint(Sketcher.Constraint("DistanceY", -1, 1, 1, 3, 430.0))
sketch7.addConstraint(Sketcher.Constraint("DistanceX", -1, 1, 1, 3, 17.5))
pocket5 = body.newObject("PartDesign::Pocket", "Pocket004")
pocket5.Profile = sketch7
pocket5.Length = 10
pocket5.Reversed = True
doc.recompute()

datumplane2 = body.newObject("PartDesign::Plane", "DatumPlane001")
datumplane2.AttachmentSupport = (doc.getObject("XY_Plane"), [""])
datumplane2.MapMode = "FlatFace"
datumplane2.AttachmentOffset = App.Placement(App.Vector(0, 0, 245), App.Rotation())
mirrored2 = body.newObject("PartDesign::Mirrored", "Mirrored001")
mirrored2.Originals = [pocket5]
mirrored2.MirrorPlane = (datumplane2, [""])
body.Tip = mirrored2

sketch8 = body.newObject("Sketcher::SketchObject", "Sketch007")
sketch8.AttachmentSupport = (doc.getObject("XZ_Plane"), [""])
sketch8.MapMode = "FlatFace"
sketch8.AttachmentOffset = App.Placement(App.Vector(0, 0, -10), App.Rotation())
sketch8.addGeometry(Part.LineSegment(App.Vector(32.5, 391.4, 0), App.Vector(17.5, 391.4, 0)), False)
sketch8.addGeometry(Part.ArcOfCircle(Part.Circle(App.Vector(17.5, 400, 0), App.Vector(0, 0, 1), 8.6), math.radians(90), math.radians(270)), False)
sketch8.addGeometry(Part.LineSegment(App.Vector(17.5, 408.6, 0), App.Vector(32.5, 408.6, 0)), False)
sketch8.addGeometry(Part.ArcOfCircle(Part.Circle(App.Vector(32.5, 400, 0), App.Vector(0, 0, 1), 8.6), math.radians(-90), math.radians(90)), False)
sketch8.addConstraint(Sketcher.Constraint("Tangent", 0, 2, 1, 2))
sketch8.addConstraint(Sketcher.Constraint("Tangent", 1, 1, 2, 1))
sketch8.addConstraint(Sketcher.Constraint("Tangent", 2, 2, 3, 2))
sketch8.addConstraint(Sketcher.Constraint("Tangent", 3, 1, 0, 1))
sketch8.addConstraint(Sketcher.Constraint("Horizontal", 0))
sketch8.addConstraint(Sketcher.Constraint("Horizontal", 2))
sketch8.addConstraint(Sketcher.Constraint("Radius", 1, 8.6))
sketch8.addConstraint(Sketcher.Constraint("DistanceX", 0, 2, 0, 1, 15.0))
sketch8.addConstraint(Sketcher.Constraint("DistanceY", -1, 1, 1, 3, 400.0))
sketch8.addConstraint(Sketcher.Constraint("DistanceX", -1, 1, 1, 3, 17.5))
pocket6 = body.newObject("PartDesign::Pocket", "Pocket005")
pocket6.Profile = sketch8
pocket6.Length = 10
pocket6.Reversed = True
doc.recompute()

datumplane3 = body.newObject("PartDesign::Plane", "DatumPlane002")
datumplane3.AttachmentSupport = (doc.getObject("XY_Plane"), [""])
datumplane3.MapMode = "FlatFace"
datumplane3.AttachmentOffset = App.Placement(App.Vector(0, 0, 245), App.Rotation())
mirrored3 = body.newObject("PartDesign::Mirrored", "Mirrored002")
mirrored3.Originals = [pocket6]
mirrored3.MirrorPlane = (datumplane3, [""])
body.Tip = mirrored3

doc.recompute()
